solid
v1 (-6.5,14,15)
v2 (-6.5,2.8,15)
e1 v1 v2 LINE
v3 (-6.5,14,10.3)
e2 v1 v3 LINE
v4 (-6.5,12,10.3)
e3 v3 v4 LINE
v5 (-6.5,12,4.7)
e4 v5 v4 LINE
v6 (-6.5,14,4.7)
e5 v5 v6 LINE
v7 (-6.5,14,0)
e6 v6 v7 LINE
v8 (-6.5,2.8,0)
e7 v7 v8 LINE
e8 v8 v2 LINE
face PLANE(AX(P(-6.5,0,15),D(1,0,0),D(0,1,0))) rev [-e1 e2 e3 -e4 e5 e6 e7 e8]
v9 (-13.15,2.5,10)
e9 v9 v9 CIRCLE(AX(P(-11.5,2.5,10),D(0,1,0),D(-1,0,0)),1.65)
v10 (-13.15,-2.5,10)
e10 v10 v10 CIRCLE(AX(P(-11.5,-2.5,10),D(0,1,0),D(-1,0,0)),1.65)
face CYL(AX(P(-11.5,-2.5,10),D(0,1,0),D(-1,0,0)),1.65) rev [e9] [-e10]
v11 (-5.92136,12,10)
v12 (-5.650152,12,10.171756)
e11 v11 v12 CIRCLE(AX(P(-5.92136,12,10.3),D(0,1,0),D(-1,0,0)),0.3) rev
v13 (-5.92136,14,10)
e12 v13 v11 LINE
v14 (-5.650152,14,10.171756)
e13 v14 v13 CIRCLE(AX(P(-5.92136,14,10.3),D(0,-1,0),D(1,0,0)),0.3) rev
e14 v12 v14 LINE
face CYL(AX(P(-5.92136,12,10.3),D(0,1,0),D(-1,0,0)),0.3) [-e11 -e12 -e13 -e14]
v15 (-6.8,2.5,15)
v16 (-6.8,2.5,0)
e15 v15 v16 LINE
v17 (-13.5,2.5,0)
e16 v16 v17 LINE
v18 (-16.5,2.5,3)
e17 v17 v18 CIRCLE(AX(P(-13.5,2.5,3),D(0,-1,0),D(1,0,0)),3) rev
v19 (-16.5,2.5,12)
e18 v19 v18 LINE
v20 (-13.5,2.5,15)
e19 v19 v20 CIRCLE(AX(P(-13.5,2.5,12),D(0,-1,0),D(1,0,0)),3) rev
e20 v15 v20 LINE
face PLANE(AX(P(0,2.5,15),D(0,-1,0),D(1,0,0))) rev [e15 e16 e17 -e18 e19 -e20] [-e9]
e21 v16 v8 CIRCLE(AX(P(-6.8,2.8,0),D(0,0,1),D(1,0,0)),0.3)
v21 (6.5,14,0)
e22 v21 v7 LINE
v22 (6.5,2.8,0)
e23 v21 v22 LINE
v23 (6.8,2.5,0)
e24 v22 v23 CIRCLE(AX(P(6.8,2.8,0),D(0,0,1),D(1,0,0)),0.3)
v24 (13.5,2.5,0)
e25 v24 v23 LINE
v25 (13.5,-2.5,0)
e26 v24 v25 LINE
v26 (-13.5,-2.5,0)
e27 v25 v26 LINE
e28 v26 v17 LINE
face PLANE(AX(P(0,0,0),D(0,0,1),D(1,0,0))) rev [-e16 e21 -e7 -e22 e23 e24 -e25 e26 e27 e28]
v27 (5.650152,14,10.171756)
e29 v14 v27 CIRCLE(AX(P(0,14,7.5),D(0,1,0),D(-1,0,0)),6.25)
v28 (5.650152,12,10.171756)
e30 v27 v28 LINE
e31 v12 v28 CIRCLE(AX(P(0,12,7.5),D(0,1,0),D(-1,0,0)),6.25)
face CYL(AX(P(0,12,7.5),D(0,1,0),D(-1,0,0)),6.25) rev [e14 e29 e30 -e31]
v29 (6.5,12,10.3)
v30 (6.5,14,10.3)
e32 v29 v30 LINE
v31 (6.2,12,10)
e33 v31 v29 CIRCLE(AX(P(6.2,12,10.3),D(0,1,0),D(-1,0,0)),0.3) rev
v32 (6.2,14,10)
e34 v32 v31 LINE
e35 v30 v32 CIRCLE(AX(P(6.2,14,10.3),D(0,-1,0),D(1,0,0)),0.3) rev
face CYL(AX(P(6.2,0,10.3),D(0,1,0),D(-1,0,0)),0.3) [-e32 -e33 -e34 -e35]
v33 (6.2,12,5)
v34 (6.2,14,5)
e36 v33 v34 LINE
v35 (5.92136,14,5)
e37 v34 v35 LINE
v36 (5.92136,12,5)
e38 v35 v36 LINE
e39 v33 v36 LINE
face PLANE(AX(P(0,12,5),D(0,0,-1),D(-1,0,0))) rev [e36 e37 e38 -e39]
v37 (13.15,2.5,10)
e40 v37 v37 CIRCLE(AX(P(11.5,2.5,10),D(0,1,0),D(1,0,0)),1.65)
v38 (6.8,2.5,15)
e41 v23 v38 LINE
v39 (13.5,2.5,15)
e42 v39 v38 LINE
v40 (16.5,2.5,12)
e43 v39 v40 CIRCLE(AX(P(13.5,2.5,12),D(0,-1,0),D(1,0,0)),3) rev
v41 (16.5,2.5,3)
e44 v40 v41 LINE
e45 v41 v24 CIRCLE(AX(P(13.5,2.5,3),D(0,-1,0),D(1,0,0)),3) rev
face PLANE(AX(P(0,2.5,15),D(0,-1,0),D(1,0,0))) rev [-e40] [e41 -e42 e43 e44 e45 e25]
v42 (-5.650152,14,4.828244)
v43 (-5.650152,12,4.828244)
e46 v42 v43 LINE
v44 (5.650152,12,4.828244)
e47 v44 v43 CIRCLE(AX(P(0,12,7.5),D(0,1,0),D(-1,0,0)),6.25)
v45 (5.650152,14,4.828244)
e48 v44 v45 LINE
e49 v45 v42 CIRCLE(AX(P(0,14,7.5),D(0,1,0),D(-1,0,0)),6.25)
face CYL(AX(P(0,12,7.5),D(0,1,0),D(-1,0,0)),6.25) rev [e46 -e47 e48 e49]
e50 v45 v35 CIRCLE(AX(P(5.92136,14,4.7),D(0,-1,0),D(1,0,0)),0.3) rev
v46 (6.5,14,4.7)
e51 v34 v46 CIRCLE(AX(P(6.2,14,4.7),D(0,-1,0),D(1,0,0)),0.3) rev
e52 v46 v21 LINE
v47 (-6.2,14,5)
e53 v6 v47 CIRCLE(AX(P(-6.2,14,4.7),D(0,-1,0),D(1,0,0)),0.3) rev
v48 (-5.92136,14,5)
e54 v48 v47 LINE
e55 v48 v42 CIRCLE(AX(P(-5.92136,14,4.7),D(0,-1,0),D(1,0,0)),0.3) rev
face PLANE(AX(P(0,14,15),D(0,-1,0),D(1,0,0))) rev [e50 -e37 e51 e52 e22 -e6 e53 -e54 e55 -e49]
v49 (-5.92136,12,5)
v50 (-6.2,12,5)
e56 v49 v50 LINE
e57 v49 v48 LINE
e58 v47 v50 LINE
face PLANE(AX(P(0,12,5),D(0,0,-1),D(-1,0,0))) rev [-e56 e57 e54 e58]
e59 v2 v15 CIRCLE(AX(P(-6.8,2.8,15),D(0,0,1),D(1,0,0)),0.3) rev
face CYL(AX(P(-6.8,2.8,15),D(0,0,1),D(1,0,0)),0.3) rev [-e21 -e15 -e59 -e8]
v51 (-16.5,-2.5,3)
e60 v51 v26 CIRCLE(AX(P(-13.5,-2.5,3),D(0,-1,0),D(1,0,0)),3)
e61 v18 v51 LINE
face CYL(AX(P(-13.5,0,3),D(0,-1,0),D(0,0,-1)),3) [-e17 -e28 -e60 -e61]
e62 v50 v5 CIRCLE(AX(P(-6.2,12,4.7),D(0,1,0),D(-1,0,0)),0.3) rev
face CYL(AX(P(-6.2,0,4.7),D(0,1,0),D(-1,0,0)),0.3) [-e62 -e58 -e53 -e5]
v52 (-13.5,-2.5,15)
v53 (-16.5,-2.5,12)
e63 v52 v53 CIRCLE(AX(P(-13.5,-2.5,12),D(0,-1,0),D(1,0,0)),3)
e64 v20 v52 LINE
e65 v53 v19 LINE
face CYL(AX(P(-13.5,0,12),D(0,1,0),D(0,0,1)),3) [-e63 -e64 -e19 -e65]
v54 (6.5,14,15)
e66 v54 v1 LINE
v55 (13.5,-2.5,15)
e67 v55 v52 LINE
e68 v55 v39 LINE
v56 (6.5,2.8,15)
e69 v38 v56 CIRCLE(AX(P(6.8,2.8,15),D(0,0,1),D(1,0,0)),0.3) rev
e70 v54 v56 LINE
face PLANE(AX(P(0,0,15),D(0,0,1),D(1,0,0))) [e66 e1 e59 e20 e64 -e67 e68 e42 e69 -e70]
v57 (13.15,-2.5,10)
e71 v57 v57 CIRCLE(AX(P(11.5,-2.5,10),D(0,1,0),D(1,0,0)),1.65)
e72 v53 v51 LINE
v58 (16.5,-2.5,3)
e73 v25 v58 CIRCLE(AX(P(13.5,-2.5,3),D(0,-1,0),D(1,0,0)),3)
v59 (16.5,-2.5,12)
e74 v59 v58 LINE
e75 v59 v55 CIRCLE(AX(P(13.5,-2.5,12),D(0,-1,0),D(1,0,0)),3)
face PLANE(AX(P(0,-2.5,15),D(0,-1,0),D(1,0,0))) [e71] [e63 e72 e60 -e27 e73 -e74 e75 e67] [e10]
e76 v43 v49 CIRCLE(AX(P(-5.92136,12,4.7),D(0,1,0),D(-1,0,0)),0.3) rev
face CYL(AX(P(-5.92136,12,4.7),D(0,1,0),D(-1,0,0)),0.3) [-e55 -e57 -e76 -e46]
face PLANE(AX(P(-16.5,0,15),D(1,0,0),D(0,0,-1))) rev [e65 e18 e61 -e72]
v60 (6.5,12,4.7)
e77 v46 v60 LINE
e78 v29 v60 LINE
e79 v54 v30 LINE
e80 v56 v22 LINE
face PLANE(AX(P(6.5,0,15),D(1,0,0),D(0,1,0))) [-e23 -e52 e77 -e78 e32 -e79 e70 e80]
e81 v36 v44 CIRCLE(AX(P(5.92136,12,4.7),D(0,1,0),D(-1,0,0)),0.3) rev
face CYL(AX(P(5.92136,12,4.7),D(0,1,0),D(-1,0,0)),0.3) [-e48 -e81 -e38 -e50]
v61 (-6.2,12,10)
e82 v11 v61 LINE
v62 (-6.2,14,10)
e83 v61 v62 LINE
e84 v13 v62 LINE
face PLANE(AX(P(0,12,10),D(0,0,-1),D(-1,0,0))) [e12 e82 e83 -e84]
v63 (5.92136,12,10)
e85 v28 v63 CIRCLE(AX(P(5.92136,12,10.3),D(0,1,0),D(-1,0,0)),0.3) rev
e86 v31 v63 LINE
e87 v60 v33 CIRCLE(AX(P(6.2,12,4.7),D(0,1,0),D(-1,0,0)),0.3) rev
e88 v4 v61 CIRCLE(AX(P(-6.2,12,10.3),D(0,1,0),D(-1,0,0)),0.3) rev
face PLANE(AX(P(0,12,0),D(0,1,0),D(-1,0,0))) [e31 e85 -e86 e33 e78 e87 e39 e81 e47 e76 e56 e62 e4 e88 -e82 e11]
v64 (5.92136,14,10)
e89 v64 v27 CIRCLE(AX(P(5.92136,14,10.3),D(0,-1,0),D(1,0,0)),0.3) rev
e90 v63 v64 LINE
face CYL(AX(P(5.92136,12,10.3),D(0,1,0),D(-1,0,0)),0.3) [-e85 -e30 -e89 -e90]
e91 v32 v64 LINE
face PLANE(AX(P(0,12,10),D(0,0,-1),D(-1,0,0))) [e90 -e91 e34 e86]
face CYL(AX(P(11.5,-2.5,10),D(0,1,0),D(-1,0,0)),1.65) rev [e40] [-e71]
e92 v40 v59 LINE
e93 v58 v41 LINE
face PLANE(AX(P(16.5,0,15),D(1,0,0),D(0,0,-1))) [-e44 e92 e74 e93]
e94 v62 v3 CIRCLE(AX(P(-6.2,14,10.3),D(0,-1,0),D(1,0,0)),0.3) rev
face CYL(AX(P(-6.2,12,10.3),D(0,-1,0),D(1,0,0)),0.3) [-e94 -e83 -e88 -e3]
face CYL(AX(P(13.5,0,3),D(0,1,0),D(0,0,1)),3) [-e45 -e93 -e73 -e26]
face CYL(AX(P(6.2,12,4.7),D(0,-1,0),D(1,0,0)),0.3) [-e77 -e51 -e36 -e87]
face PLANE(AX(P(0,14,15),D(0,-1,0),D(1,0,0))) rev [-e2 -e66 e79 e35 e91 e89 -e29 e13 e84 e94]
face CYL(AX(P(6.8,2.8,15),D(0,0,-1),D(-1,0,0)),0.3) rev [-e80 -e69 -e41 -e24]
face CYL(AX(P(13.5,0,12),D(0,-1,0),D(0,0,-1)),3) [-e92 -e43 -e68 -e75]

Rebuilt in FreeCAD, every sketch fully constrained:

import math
import FreeCAD as App
import Part
import Sketcher

V = App.Vector
Q = App.Units.Quantity


def edges_at(feature, points):
    """Names of the edges that pass closest to the given points."""
    edges = feature.Shape.Edges
    near = lambda p: min(range(len(edges)), key=lambda i: edges[i].distToShape(Part.Vertex(*p))[0])
    return sorted({f"Edge{near(p) + 1}" for p in points})


def add_polygon(sketch, points):
    """Adds a closed chain of lines whose ends are joined by coincident constraints."""
    first, n = sketch.GeometryCount, len(points)
    for a, b in zip(points, points[1:] + points[:1]):
        sketch.addGeometry(Part.LineSegment(App.Vector(*a, 0), App.Vector(*b, 0)), False)
    for i in range(n):
        sketch.addConstraint(Sketcher.Constraint("Coincident", first + i, 2, first + (i + 1) % n, 1))

doc = App.newDocument("Part")
body = doc.addObject("PartDesign::Body", "Body")

# Sketch on XY plane
sketch1 = body.newObject("Sketcher::SketchObject", "Sketch")
sketch1.AttachmentSupport = (doc.getObject("XY_Plane"), [""])
sketch1.MapMode = "FlatFace"
add_polygon(sketch1, [(-16, 2), (-16, -2), (16, -2), (16, 2), (6, 2), (6, 14), (-6, 14), (-6, 2)])  # lines 0-7
sketch1.addConstraint(Sketcher.Constraint("Vertical", 0))
sketch1.addConstraint(Sketcher.Constraint("Horizontal", 1))
sketch1.addConstraint(Sketcher.Constraint("Vertical", 2))
sketch1.addConstraint(Sketcher.Constraint("Horizontal", 3))
sketch1.addConstraint(Sketcher.Constraint("Vertical", 4))
sketch1.addConstraint(Sketcher.Constraint("Horizontal", 5))
sketch1.addConstraint(Sketcher.Constraint("Vertical", 6))
sketch1.addConstraint(Sketcher.Constraint("Horizontal", 7))
sketch1.addConstraint(Sketcher.Constraint("Symmetric", 0, 2, 2, 2, -1, 1))
sketch1.addConstraint(Sketcher.Constraint("Symmetric", 3, 2, 6, 2, -2))
sketch1.addConstraint(Sketcher.Constraint("DistanceX", 1, 1, 1, 2, Q("33 mm")))
sketch1.addConstraint(Sketcher.Constraint("DistanceX", 3, 2, 3, 1, Q("10 mm")))
sketch1.addConstraint(Sketcher.Constraint("DistanceY", 0, 2, 0, 1, Q("5 mm")))
sketch1.addConstraint(Sketcher.Constraint("DistanceY", 4, 1, 4, 2, Q("11.5 mm")))
pad1 = body.newObject("PartDesign::Pad", "Pad")
pad1.Profile = sketch1
pad1.Length = 15

# Sketch on XZ plane
sketch2 = body.newObject("Sketcher::SketchObject", "Sketch001")
sketch2.AttachmentSupport = (doc.getObject("XZ_Plane"), [""])
sketch2.MapMode = "FlatFace"
sketch2.AttachmentOffset = App.Placement(V(0, 0, -2.5), App.Rotation())
sketch2.addGeometry(Part.Circle(V(-11.5, 10, 0), V(0, 0, 1), 1.6), False)
sketch2.addGeometry(Part.Circle(V(11.5, 10, 0), V(0, 0, 1), 1.6), False)
sketch2.addConstraint(Sketcher.Constraint("Equal", 0, 1))
sketch2.addConstraint(Sketcher.Constraint("Symmetric", 0, 3, 1, 3, -2))
sketch2.addConstraint(Sketcher.Constraint("Diameter", 0, Q("3.3 mm")))
sketch2.addConstraint(Sketcher.Constraint("DistanceY", -1, 1, 0, 3, Q("10 mm")))
sketch2.addConstraint(Sketcher.Constraint("DistanceX", 0, 3, 1, 3, Q("23 mm")))
pocket1 = body.newObject("PartDesign::Pocket", "Pocket")
pocket1.Profile = sketch2
pocket1.Type = "ThroughAll"
pocket1.Reversed = True

# Sketch on XZ plane
sketch3 = body.newObject("Sketcher::SketchObject", "Sketch002")
sketch3.AttachmentSupport = (doc.getObject("XZ_Plane"), [""])
sketch3.MapMode = "FlatFace"
sketch3.AttachmentOffset = App.Placement(V(0, 0, -14), App.Rotation())
sketch3.addGeometry(Part.ArcOfCircle(Part.Circle(V(0, 7.5, 0), V(0, 0, 1), 6.2), math.radians(-156), math.radians(-24)), False)
sketch3.addGeometry(Part.LineSegment(V(-5.7, 5, 0), V(-6.5, 5, 0)), False)
sketch3.addGeometry(Part.LineSegment(V(-6.5, 5, 0), V(-6.5, 10, 0)), False)
sketch3.addGeometry(Part.LineSegment(V(-6.5, 10, 0), V(-5.7, 10, 0)), False)
sketch3.addGeometry(Part.ArcOfCircle(Part.Circle(V(0, 7.5, 0), V(0, 0, 1), 6.2), math.radians(24), math.radians(156)), False)
sketch3.addGeometry(Part.LineSegment(V(5.7, 10, 0), V(6.5, 10, 0)), False)
sketch3.addGeometry(Part.LineSegment(V(6.5, 10, 0), V(6.5, 5, 0)), False)
sketch3.addGeometry(Part.LineSegment(V(6.5, 5, 0), V(5.7, 5, 0)), False)
sketch3.addConstraint(Sketcher.Constraint("Coincident", 0, 1, 1, 1))
sketch3.addConstraint(Sketcher.Constraint("Coincident", 1, 2, 2, 1))
sketch3.addConstraint(Sketcher.Constraint("Coincident", 2, 2, 3, 1))
sketch3.addConstraint(Sketcher.Constraint("Coincident", 3, 2, 4, 2))
sketch3.addConstraint(Sketcher.Constraint("Coincident", 4, 1, 5, 1))
sketch3.addConstraint(Sketcher.Constraint("Coincident", 5, 2, 6, 1))
sketch3.addConstraint(Sketcher.Constraint("Coincident", 6, 2, 7, 1))
sketch3.addConstraint(Sketcher.Constraint("Coincident", 7, 2, 0, 2))
sketch3.addConstraint(Sketcher.Constraint("Horizontal", 1))
sketch3.addConstraint(Sketcher.Constraint("Vertical", 2))
sketch3.addConstraint(Sketcher.Constraint("Horizontal", 3))
sketch3.addConstraint(Sketcher.Constraint("Horizontal", 5))
sketch3.addConstraint(Sketcher.Constraint("Vertical", 6))
sketch3.addConstraint(Sketcher.Constraint("Horizontal", 7))
sketch3.addConstraint(Sketcher.Constraint("Coincident", 4, 3, 0, 3))
sketch3.addConstraint(Sketcher.Constraint("Equal", 0, 4))
sketch3.addConstraint(Sketcher.Constraint("Symmetric", 3, 2, 4, 1, -2))
sketch3.addConstraint(Sketcher.Constraint("Symmetric", 1, 2, 6, 2, -2))
sketch3.addConstraint(Sketcher.Constraint("Vertical", 0, 1, 3, 2))
sketch3.addConstraint(Sketcher.Constraint("DistanceY", 2, 1, 2, 2, Q("5 mm")))
sketch3.addConstraint(Sketcher.Constraint("Radius", 0, Q("6.25 mm")))
sketch3.addConstraint(Sketcher.Constraint("DistanceY", -1, 1, 0, 1, Q("5 mm")))
sketch3.addConstraint(Sketcher.Constraint("DistanceX", 2, 2, 5, 2, Q("13 mm")))
pocket2 = body.newObject("PartDesign::Pocket", "Pocket001")
pocket2.Profile = sketch3
pocket2.Length = 2
pocket2.Reversed = True
doc.recompute()

fillet = body.newObject("PartDesign::Fillet", "Fillet")
fillet.Base = (pocket2, edges_at(pocket2, [
    (-5.728, 13, 5),
    (5.728, 13, 5),
    (6.5, 13, 5),
    (6.5, 13, 10),
    (5.728, 13, 10),
    (-5.728, 13, 10),
    (-6.5, 13, 10),
    (-6.5, 13, 5),
]))
fillet.Radius = 0.3
doc.recompute()

fillet2 = body.newObject("PartDesign::Fillet", "Fillet001")
fillet2.Base = (fillet, edges_at(fillet, [(-6.5, 2.5, 7.5), (6.5, 2.5, 7.5)]))
fillet2.Radius = 0.3
doc.recompute()

fillet3 = body.newObject("PartDesign::Fillet", "Fillet002")
fillet3.Base = (fillet2, edges_at(fillet2, [
    (-16.5, 0, 0),
    (-16.5, 0, 15),
    (16.5, 0, 15),
    (16.5, 0, 0),
]))
fillet3.Radius = 3

doc.recompute()
